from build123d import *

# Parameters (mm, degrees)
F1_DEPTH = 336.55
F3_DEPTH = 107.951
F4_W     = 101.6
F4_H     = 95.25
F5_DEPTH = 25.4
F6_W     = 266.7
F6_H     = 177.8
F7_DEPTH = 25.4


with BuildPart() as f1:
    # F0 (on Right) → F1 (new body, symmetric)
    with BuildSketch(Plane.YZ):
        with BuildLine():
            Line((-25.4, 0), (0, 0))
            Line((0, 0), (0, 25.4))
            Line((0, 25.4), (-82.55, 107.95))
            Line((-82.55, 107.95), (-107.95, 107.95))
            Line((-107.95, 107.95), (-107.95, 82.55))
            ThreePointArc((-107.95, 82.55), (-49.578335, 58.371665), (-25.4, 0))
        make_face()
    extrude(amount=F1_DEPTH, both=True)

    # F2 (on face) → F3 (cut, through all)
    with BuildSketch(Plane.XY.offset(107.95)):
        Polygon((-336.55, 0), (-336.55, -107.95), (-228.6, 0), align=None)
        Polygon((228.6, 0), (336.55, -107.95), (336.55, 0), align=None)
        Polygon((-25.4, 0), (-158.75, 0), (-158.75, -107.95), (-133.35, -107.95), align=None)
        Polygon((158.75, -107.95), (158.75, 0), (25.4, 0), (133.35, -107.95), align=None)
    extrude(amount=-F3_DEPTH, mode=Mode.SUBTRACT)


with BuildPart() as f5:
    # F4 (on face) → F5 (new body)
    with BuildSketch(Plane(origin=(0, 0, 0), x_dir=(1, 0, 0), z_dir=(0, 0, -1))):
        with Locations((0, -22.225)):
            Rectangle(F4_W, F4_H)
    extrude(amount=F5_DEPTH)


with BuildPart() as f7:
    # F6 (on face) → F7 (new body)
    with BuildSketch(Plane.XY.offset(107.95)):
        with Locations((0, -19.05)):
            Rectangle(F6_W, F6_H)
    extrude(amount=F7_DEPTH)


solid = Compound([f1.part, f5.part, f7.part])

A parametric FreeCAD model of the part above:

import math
import FreeCAD as App
import Part
import Sketcher
from FreeCAD import Vector
Q = App.Units.Quantity


def add_polygon(sketch, points):
    """Adds a closed chain of lines whose ends are joined by coincident constraints."""
    first, n = sketch.GeometryCount, len(points)
    for a, b in zip(points, points[1:] + points[:1]):
        sketch.addGeometry(Part.LineSegment(App.Vector(*a, 0), App.Vector(*b, 0)), False)
    for i in range(n):
        sketch.addConstraint(Sketcher.Constraint("Coincident", first + i, 2, first + (i + 1) % n, 1))

doc = App.newDocument("Part")
body = doc.addObject("PartDesign::Body", "Body")
body.AllowCompound = True

sketch1 = body.newObject("Sketcher::SketchObject", "Sketch")
sketch1.AttachmentSupport = (doc.getObject("YZ_Plane"), [""])
sketch1.MapMode = "FlatFace"
sketch1.addGeometry(Part.LineSegment(Vector(-25.4, 0, 0), Vector(0, 0, 0)), False)
sketch1.addGeometry(Part.LineSegment(Vector(0, 0, 0), Vector(0, 25.4, 0)), False)
sketch1.addGeometry(Part.LineSegment(Vector(0, 25.4, 0), Vector(-82.55, 107.95, 0)), False)
sketch1.addGeometry(Part.LineSegment(Vector(-82.55, 107.95, 0), Vector(-107.95, 107.95, 0)), False)
sketch1.addGeometry(Part.LineSegment(Vector(-107.95, 107.95, 0), Vector(-107.95, 82.55, 0)), False)
sketch1.addGeometry(Part.ArcOfCircle(Part.Circle(Vector(-107.949999, 0.000001, 0), Vector(0, 0, 1), 82.549999), math.radians(-0.000001), math.radians(90.000001)), False)
sketch1.addConstraint(Sketcher.Constraint("Coincident", 0, 2, 1, 1))
sketch1.addConstraint(Sketcher.Constraint("Coincident", 1, 2, 2, 1))
sketch1.addConstraint(Sketcher.Constraint("Coincident", 2, 2, 3, 1))
sketch1.addConstraint(Sketcher.Constraint("Coincident", 3, 2, 4, 1))
sketch1.addConstraint(Sketcher.Constraint("Coincident", 4, 2, 5, 2))
sketch1.addConstraint(Sketcher.Constraint("Coincident", 5, 1, 0, 1))
sketch1.addConstraint(Sketcher.Constraint("Horizontal", 0))
sketch1.addConstraint(Sketcher.Constraint("Vertical", 1))
sketch1.addConstraint(Sketcher.Constraint("Horizontal", 3))
sketch1.addConstraint(Sketcher.Constraint("Vertical", 4))
sketch1.addConstraint(Sketcher.Constraint("Coincident", 0, 2, -1, 1))
sketch1.addConstraint(Sketcher.Constraint("PointOnObject", 5, 3, -1))
sketch1.addConstraint(Sketcher.Constraint("Vertical", 5, 3, 3, 2))
sketch1.addConstraint(Sketcher.Constraint("Equal", 0, 3))
sketch1.addConstraint(Sketcher.Constraint("Equal", 3, 1))
sketch1.addConstraint(Sketcher.Constraint("Equal", 1, 4))
sketch1.addConstraint(Sketcher.Constraint("DistanceX", 0, 1, 0, 2, Q("1 in")))
sketch1.addConstraint(Sketcher.Constraint("Radius", 5, Q("3.25 in")))
pad1 = body.newObject("PartDesign::Pad", "Pad")
pad1.Profile = sketch1
pad1.Length = Q("26.5 in")
pad1.Midplane = True

sketch2 = body.newObject("Sketcher::SketchObject", "Sketch001")
sketch2.AttachmentSupport = (doc.getObject("XY_Plane"), [""])
sketch2.MapMode = "FlatFace"
sketch2.AttachmentOffset = App.Placement(Vector(0, 0, 4.25 * 25.4), App.Rotation())
add_polygon(sketch2, [(-336.55, 0), (-336.55, -107.95), (-228.6, 0)])
add_polygon(sketch2, [(228.6, 0), (336.55, -107.95), (336.55, 0)])
add_polygon(sketch2, [(-25.4, 0), (-158.75, 0), (-158.75, -107.95), (-133.35, -107.95)])
add_polygon(sketch2, [(158.75, -107.95), (158.75, 0), (25.4, 0), (133.35, -107.95)])
sketch2.addConstraint(Sketcher.Constraint("Vertical", 0))
sketch2.addConstraint(Sketcher.Constraint("Horizontal", 2))
sketch2.addConstraint(Sketcher.Constraint("Vertical", 4))
sketch2.addConstraint(Sketcher.Constraint("Horizontal", 5))
sketch2.addConstraint(Sketcher.Constraint("Horizontal", 6))
sketch2.addConstraint(Sketcher.Constraint("Vertical", 7))
sketch2.addConstraint(Sketcher.Constraint("Horizontal", 8))
sketch2.addConstraint(Sketcher.Constraint("Vertical", 10))
sketch2.addConstraint(Sketcher.Constraint("Horizontal", 11))
sketch2.addConstraint(Sketcher.Constraint("Horizontal", 13))
sketch2.addConstraint(Sketcher.Constraint("Symmetric", 2, 2, 4, 2, -1, 1))
sketch2.addConstraint(Sketcher.Constraint("Symmetric", 6, 2, 10, 2, -1, 1))
sketch2.addConstraint(Sketcher.Constraint("Symmetric", 1, 2, 5, 2, -2))
sketch2.addConstraint(Sketcher.Constraint("Symmetric", 9, 2, 11, 2, -2))
sketch2.addConstraint(Sketcher.Constraint("Symmetric", 8, 2, 12, 2, -2))
sketch2.addConstraint(Sketcher.Constraint("Perpendicular", 1, 3))
sketch2.addConstraint(Sketcher.Constraint("Perpendicular", 3, 9))
sketch2.addConstraint(Sketcher.Constraint("Perpendicular", 9, 12))
sketch2.addConstraint(Sketcher.Constraint("Horizontal", 3, 2, 7, 2))
sketch2.addConstraint(Sketcher.Constraint("DistanceX", 8, 1, 8, 2, Q("1 in")))
sketch2.addConstraint(Sketcher.Constraint("DistanceX", 1, 2, -1, 1, Q("9 in")))
sketch2.addConstraint(Sketcher.Constraint("DistanceX", 9, 2, -1, 1, Q("1 in")))
sketch2.addConstraint(Sketcher.Constraint("DistanceX", 2, 2, 2, 1, Q("4.25 in")))
pocket1 = body.newObject("PartDesign::Pocket", "Pocket")
pocket1.Profile = sketch2
pocket1.Type = "ThroughAll"
body2 = doc.addObject("PartDesign::Body", "Body001")

sketch3 = body2.newObject("Sketcher::SketchObject", "Sketch002")
sketch3.AttachmentSupport = (doc.getObject("XY_Plane001"), [""])
sketch3.MapMode = "FlatFace"
add_polygon(sketch3, [(-50.8, -25.4), (-50.8, 69.85), (50.8, 69.85), (50.8, -25.4)])
sketch3.addConstraint(Sketcher.Constraint("Vertical", 0))
sketch3.addConstraint(Sketcher.Constraint("Horizontal", 1))
sketch3.addConstraint(Sketcher.Constraint("Vertical", 2))
sketch3.addConstraint(Sketcher.Constraint("Horizontal", 3))
sketch3.addConstraint(Sketcher.Constraint("DistanceX", 1, 1, 1, 2, Q("4 in")))
sketch3.addConstraint(Sketcher.Constraint("DistanceX", 0, 2, -1, 1, Q("2 in")))
sketch3.addConstraint(Sketcher.Constraint("DistanceY", 2, 2, -1, 1, Q("1 in")))
sketch3.addConstraint(Sketcher.Constraint("DistanceY", 0, 1, 0, 2, Q("3.75 in")))
pad2 = body2.newObject("PartDesign::Pad", "Pad001")
pad2.Profile = sketch3
pad2.Length = Q("1 in")
pad2.Reversed = True
body3 = doc.addObject("PartDesign::Body", "Body002")

sketch4 = body3.newObject("Sketcher::SketchObject", "Sketch003")
sketch4.AttachmentSupport = (doc.getObject("XY_Plane002"), [""])
sketch4.MapMode = "FlatFace"
sketch4.AttachmentOffset = App.Placement(Vector(0, 0, 4.25 * 25.4), App.Rotation())
add_polygon(sketch4, [(-133.35, 69.85), (-133.35, -107.95), (133.35, -107.95), (133.35, 69.85)])
sketch4.addConstraint(Sketcher.Constraint("Vertical", 0))
sketch4.addConstraint(Sketcher.Constraint("Horizontal", 1))
sketch4.addConstraint(Sketcher.Constraint("Vertical", 2))
sketch4.addConstraint(Sketcher.Constraint("Horizontal", 3))
sketch4.addConstraint(Sketcher.Constraint("DistanceY", 0, 2, 0, 1, Q("7 in")))
sketch4.addConstraint(Sketcher.Constraint("DistanceX", 1, 1, 1, 2, Q("10.5 in")))
sketch4.addConstraint(Sketcher.Constraint("DistanceX", 0, 2, -1, 1, Q("5.25 in")))
sketch4.addConstraint(Sketcher.Constraint("DistanceY", 0, 2, -1, 1, Q("4.25 in")))
pad3 = body3.newObject("PartDesign::Pad", "Pad002")
pad3.Profile = sketch4
pad3.Length = Q("1 in")

doc.recompute()
